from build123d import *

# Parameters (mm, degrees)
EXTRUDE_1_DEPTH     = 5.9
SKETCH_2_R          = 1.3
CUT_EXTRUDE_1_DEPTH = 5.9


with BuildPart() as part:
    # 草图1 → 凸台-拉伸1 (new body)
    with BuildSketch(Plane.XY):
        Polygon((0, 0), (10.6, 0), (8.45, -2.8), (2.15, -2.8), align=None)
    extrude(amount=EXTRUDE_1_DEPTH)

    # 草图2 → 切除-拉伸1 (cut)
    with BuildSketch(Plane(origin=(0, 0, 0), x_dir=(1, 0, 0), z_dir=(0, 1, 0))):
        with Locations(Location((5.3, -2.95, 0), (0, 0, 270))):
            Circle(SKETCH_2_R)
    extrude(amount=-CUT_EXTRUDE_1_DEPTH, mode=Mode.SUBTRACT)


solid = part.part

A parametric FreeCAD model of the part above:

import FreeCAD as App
import Part
import Sketcher
from FreeCAD import Vector

doc = App.newDocument("Part")
params = doc.addObject("Spreadsheet::Sheet", "Params")
for row, (alias, value) in enumerate([
    ("sketch1_width", "10.6 mm"),
    ("sketch1_width2", "6.3 mm"),
    ("pad1_length", "5.9 mm"),
    ("sketch2_diameter", "2.6 mm"),
    ("pocket1_length", "5.9 mm"),
], start=1):
    params.set(f"A{row}", alias)
    params.set(f"B{row}", "=" + value)
    params.setAlias(f"B{row}", alias)

body = doc.addObject("PartDesign::Body", "Body")

sketch1 = body.newObject("Sketcher::SketchObject", "Sketch")
sketch1.AttachmentSupport = (doc.getObject("XY_Plane"), [""])
sketch1.MapMode = "FlatFace"
sketch1.addGeometry([
    Part.LineSegment(Vector(10.6, 0, 0), Vector(0, 0, 0)),
    Part.LineSegment(Vector(0, 0, 0), Vector(2.1, -2.8, 0)),
    Part.LineSegment(Vector(2.1, -2.8, 0), Vector(8.4, -2.8, 0)),
    Part.LineSegment(Vector(8.4, -2.8, 0), Vector(10.6, 0, 0)),
], False)
sketch1.addConstraint([
    Sketcher.Constraint("Coincident", 0, 2, 1, 1),
    Sketcher.Constraint("Coincident", 1, 2, 2, 1),
    Sketcher.Constraint("Coincident", 2, 2, 3, 1),
    Sketcher.Constraint("Coincident", 3, 2, 0, 1),
    Sketcher.Constraint("Horizontal", 0),
    Sketcher.Constraint("Horizontal", 2),
    Sketcher.Constraint("Coincident", 0, 2, -1, 1),
    Sketcher.Constraint("Equal", 1, 3),
    Sketcher.Constraint("DistanceX", 0, 2, 0, 1, 10.6),
    Sketcher.Constraint("DistanceX", 2, 1, 2, 2, 6.3),
    Sketcher.Constraint("DistanceY", 1, 2, -1, 1, 2.8),
])
sketch1.setExpression("Constraints[8]", "Params.sketch1_width")
sketch1.setExpression("Constraints[9]", "Params.sketch1_width2")
pad1 = body.newObject("PartDesign::Pad", "Pad")
pad1.Profile = sketch1
pad1.setExpression("Length", "Params.pad1_length")

sketch2 = body.newObject("Sketcher::SketchObject", "Sketch001")
sketch2.AttachmentSupport = (doc.getObject("XZ_Plane"), [""])
sketch2.MapMode = "FlatFace"
sketch2.addGeometry(Part.Circle(Vector(5.3, 3, 0), Vector(0, 0, 1), 1.3), False)
sketch2.addConstraint([
    Sketcher.Constraint("Diameter", 0, 2.6),
    Sketcher.Constraint("DistanceX", -1, 1, 0, 3, 5.3),
    Sketcher.Constraint("DistanceY", -1, 1, 0, 3, 2.95),
])
sketch2.setExpression("Constraints[0]", "Params.sketch2_diameter")
pocket1 = body.newObject("PartDesign::Pocket", "Pocket")
pocket1.Profile = sketch2
pocket1.setExpression("Length", "Params.pocket1_length")
pocket1.Reversed = True

doc.recompute()
